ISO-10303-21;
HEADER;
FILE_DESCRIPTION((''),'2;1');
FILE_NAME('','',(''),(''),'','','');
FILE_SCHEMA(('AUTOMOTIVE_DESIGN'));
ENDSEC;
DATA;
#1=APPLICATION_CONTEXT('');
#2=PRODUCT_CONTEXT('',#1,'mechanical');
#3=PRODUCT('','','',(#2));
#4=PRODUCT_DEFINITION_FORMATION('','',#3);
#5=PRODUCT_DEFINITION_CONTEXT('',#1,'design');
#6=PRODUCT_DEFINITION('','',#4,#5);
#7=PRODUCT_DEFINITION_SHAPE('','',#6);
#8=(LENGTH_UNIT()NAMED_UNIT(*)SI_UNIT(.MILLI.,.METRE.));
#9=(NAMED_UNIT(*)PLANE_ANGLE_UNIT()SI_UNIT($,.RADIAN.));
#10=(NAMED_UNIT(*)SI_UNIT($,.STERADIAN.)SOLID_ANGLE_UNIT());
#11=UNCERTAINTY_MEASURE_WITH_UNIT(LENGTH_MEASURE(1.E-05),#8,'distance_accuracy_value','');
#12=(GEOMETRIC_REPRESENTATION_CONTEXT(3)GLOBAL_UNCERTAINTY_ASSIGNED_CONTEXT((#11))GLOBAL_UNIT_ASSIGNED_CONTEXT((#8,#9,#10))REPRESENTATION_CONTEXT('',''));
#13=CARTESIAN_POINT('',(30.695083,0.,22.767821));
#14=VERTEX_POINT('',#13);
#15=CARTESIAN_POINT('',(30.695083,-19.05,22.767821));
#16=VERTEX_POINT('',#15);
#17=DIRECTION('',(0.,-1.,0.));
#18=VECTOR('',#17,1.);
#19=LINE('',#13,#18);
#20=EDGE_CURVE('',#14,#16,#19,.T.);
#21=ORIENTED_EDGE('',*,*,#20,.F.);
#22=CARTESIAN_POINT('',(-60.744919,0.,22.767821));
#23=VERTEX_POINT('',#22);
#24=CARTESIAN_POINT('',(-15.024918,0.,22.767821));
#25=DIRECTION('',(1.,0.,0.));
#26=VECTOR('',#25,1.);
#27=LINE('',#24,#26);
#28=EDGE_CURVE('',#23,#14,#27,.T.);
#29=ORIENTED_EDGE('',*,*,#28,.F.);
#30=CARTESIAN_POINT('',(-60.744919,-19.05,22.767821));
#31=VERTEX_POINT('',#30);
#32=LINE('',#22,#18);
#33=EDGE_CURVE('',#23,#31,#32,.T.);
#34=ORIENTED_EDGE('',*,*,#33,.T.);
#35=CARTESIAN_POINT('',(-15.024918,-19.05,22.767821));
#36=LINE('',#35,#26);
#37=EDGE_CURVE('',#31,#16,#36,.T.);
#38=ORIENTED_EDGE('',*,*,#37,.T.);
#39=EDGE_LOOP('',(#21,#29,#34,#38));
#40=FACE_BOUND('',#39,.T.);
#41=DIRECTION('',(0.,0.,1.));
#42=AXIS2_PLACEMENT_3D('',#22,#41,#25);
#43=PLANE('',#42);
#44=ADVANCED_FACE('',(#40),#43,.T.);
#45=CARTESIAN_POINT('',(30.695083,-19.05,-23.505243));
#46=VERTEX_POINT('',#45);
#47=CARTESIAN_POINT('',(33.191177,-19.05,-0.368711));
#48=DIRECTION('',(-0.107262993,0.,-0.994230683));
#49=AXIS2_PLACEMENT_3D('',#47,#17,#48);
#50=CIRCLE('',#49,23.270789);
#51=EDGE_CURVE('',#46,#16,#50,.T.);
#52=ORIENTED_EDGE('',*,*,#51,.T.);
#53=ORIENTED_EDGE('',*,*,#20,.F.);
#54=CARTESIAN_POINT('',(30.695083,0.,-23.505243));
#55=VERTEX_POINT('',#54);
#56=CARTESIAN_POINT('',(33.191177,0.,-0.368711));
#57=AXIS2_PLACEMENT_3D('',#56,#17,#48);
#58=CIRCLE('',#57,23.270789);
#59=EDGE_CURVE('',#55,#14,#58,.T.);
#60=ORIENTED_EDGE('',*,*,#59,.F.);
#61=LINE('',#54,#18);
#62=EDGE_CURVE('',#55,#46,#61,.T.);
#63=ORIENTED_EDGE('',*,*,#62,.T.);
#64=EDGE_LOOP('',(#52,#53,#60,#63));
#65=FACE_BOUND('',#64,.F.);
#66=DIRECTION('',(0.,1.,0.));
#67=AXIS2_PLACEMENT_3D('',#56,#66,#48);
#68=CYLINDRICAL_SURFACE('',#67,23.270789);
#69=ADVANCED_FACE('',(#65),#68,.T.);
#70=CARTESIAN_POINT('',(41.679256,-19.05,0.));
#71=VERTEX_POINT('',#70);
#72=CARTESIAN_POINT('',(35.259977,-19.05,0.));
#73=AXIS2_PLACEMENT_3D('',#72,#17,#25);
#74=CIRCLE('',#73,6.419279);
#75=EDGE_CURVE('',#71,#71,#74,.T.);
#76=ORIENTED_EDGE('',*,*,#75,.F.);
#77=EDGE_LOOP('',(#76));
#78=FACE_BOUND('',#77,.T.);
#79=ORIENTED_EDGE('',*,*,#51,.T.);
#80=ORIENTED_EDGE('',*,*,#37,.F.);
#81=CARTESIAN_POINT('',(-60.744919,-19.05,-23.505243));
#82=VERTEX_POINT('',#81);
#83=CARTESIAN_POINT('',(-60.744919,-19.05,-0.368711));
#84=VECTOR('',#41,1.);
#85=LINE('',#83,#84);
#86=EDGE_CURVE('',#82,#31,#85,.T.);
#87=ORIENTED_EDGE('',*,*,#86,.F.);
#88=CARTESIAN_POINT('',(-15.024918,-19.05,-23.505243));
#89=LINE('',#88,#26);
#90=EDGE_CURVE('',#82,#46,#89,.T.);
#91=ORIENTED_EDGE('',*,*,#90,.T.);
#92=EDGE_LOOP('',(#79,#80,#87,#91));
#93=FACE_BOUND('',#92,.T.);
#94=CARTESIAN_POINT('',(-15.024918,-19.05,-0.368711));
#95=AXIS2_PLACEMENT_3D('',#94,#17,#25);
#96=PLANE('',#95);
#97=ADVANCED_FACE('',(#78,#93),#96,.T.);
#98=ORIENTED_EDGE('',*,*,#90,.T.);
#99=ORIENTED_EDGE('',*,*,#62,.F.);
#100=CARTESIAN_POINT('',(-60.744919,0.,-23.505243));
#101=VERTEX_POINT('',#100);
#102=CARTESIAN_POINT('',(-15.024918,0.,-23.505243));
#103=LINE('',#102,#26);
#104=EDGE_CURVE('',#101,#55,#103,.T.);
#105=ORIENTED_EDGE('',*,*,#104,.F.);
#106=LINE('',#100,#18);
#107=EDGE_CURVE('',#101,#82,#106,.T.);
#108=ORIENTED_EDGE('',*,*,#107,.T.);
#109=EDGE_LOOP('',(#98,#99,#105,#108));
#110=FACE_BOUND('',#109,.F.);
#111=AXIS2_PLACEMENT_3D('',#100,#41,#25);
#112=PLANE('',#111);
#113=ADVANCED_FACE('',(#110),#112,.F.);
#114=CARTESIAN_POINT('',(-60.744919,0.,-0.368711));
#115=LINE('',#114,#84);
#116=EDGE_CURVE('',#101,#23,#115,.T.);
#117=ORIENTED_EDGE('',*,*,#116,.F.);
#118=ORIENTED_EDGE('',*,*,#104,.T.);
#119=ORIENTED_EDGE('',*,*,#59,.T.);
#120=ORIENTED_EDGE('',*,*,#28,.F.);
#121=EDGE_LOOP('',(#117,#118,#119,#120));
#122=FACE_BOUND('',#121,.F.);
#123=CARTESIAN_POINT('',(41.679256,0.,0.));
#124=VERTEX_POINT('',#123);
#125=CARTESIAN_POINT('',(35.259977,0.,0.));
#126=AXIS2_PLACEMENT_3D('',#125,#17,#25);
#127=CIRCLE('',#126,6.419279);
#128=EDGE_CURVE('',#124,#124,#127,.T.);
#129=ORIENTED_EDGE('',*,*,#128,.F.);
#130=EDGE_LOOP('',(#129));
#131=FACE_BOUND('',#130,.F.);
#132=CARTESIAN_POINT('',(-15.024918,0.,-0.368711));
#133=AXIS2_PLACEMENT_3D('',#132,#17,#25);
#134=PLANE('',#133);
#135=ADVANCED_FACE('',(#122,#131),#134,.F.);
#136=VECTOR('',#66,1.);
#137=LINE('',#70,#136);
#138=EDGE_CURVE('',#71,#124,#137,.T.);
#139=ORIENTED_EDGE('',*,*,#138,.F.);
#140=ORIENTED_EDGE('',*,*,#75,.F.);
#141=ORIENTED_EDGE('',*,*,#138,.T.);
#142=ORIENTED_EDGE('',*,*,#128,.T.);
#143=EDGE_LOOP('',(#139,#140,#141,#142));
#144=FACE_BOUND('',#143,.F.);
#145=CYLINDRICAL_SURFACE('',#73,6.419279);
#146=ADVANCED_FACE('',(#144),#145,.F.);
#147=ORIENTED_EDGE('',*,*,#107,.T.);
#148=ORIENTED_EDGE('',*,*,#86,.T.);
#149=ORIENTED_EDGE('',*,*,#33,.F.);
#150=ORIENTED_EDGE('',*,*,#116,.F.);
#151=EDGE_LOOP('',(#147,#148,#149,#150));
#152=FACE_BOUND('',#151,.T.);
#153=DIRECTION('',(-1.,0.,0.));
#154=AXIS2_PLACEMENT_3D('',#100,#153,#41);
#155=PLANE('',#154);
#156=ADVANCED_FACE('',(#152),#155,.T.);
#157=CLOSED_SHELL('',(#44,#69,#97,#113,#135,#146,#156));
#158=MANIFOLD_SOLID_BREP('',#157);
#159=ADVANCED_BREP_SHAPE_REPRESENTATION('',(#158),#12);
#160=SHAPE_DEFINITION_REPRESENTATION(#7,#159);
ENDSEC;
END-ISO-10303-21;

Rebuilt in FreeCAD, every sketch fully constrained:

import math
import FreeCAD as App
import Part
import Sketcher

V = App.Vector
Q = App.Units.Quantity

doc = App.newDocument("Part")
params = doc.addObject("Spreadsheet::Sheet", "Params")
for row, (alias, value) in enumerate([
    ("sketch1_width", "3.6000001 in"),
    ("pad1_length", "0.75 in"),
    ("pocket1_length", "2.77 in"),
], start=1):
    params.set(f"A{row}", alias)
    params.set(f"B{row}", "=" + value)
    params.setAlias(f"B{row}", alias)

body = doc.addObject("PartDesign::Body", "Body")

sketch1 = body.newObject("Sketcher::SketchObject", "Sketch")
sketch1.AttachmentSupport = (doc.getObject("XZ_Plane"), [""])
sketch1.MapMode = "FlatFace"
sketch1.addGeometry(Part.LineSegment(V(-61, 23, 0), V(-61, -24, 0)), False)
sketch1.addGeometry(Part.LineSegment(V(-61, -24, 0), V(31, -24, 0)), False)
sketch1.addGeometry(Part.ArcOfCircle(Part.Circle(V(33, 0, 0), V(0, 0, 1), 23), math.radians(-96), math.radians(96)), False)
sketch1.addGeometry(Part.LineSegment(V(31, 23, 0), V(-61, 23, 0)), False)
sketch1.addConstraint(Sketcher.Constraint("Coincident", 0, 2, 1, 1))
sketch1.addConstraint(Sketcher.Constraint("Coincident", 1, 2, 2, 1))
sketch1.addConstraint(Sketcher.Constraint("Coincident", 2, 2, 3, 1))
sketch1.addConstraint(Sketcher.Constraint("Coincident", 3, 2, 0, 1))
sketch1.addConstraint(Sketcher.Constraint("Vertical", 0))
sketch1.addConstraint(Sketcher.Constraint("Horizontal", 1))
sketch1.addConstraint(Sketcher.Constraint("Horizontal", 3))
sketch1.addConstraint(Sketcher.Constraint("Vertical", 1, 2, 2, 2))
sketch1.addConstraint(Sketcher.Constraint("DistanceX", 1, 1, 1, 2, Q("3.6000001 in")))
sketch1.addConstraint(Sketcher.Constraint("Radius", 2, Q("23.270789 mm")))
sketch1.addConstraint(Sketcher.Constraint("DistanceY", 0, 2, 0, 1, Q("46.273064 mm")))
sketch1.addConstraint(Sketcher.Constraint("DistanceY", 2, 3, -1, 1, Q("0.368711 mm")))
sketch1.addConstraint(Sketcher.Constraint("DistanceX", 0, 2, -1, 1, Q("60.744919 mm")))
sketch1.setExpression("Constraints[8]", "Params.sketch1_width")
pad1 = body.newObject("PartDesign::Pad", "Pad")
pad1.Profile = sketch1
pad1.setExpression("Length", "Params.pad1_length")

sketch2 = body.newObject("Sketcher::SketchObject", "Sketch001")
sketch2.AttachmentSupport = (doc.getObject("XZ_Plane"), [""])
sketch2.MapMode = "FlatFace"
sketch2.AttachmentOffset = App.Placement(V(0, 0, 0.75 * 25.4), App.Rotation())
sketch2.addGeometry(Part.Circle(V(35, 0, 0), V(0, 0, 1), 6), False)
sketch2.addConstraint(Sketcher.Constraint("PointOnObject", 0, 3, -1))
sketch2.addConstraint(Sketcher.Constraint("Diameter", 0, Q("12.838558 mm")))
sketch2.addConstraint(Sketcher.Constraint("DistanceX", -1, 1, 0, 3, Q("35.259977 mm")))
pocket1 = body.newObject("PartDesign::Pocket", "Pocket")
pocket1.Profile = sketch2
pocket1.setExpression("Length", "Params.pocket1_length")

doc.recompute()
